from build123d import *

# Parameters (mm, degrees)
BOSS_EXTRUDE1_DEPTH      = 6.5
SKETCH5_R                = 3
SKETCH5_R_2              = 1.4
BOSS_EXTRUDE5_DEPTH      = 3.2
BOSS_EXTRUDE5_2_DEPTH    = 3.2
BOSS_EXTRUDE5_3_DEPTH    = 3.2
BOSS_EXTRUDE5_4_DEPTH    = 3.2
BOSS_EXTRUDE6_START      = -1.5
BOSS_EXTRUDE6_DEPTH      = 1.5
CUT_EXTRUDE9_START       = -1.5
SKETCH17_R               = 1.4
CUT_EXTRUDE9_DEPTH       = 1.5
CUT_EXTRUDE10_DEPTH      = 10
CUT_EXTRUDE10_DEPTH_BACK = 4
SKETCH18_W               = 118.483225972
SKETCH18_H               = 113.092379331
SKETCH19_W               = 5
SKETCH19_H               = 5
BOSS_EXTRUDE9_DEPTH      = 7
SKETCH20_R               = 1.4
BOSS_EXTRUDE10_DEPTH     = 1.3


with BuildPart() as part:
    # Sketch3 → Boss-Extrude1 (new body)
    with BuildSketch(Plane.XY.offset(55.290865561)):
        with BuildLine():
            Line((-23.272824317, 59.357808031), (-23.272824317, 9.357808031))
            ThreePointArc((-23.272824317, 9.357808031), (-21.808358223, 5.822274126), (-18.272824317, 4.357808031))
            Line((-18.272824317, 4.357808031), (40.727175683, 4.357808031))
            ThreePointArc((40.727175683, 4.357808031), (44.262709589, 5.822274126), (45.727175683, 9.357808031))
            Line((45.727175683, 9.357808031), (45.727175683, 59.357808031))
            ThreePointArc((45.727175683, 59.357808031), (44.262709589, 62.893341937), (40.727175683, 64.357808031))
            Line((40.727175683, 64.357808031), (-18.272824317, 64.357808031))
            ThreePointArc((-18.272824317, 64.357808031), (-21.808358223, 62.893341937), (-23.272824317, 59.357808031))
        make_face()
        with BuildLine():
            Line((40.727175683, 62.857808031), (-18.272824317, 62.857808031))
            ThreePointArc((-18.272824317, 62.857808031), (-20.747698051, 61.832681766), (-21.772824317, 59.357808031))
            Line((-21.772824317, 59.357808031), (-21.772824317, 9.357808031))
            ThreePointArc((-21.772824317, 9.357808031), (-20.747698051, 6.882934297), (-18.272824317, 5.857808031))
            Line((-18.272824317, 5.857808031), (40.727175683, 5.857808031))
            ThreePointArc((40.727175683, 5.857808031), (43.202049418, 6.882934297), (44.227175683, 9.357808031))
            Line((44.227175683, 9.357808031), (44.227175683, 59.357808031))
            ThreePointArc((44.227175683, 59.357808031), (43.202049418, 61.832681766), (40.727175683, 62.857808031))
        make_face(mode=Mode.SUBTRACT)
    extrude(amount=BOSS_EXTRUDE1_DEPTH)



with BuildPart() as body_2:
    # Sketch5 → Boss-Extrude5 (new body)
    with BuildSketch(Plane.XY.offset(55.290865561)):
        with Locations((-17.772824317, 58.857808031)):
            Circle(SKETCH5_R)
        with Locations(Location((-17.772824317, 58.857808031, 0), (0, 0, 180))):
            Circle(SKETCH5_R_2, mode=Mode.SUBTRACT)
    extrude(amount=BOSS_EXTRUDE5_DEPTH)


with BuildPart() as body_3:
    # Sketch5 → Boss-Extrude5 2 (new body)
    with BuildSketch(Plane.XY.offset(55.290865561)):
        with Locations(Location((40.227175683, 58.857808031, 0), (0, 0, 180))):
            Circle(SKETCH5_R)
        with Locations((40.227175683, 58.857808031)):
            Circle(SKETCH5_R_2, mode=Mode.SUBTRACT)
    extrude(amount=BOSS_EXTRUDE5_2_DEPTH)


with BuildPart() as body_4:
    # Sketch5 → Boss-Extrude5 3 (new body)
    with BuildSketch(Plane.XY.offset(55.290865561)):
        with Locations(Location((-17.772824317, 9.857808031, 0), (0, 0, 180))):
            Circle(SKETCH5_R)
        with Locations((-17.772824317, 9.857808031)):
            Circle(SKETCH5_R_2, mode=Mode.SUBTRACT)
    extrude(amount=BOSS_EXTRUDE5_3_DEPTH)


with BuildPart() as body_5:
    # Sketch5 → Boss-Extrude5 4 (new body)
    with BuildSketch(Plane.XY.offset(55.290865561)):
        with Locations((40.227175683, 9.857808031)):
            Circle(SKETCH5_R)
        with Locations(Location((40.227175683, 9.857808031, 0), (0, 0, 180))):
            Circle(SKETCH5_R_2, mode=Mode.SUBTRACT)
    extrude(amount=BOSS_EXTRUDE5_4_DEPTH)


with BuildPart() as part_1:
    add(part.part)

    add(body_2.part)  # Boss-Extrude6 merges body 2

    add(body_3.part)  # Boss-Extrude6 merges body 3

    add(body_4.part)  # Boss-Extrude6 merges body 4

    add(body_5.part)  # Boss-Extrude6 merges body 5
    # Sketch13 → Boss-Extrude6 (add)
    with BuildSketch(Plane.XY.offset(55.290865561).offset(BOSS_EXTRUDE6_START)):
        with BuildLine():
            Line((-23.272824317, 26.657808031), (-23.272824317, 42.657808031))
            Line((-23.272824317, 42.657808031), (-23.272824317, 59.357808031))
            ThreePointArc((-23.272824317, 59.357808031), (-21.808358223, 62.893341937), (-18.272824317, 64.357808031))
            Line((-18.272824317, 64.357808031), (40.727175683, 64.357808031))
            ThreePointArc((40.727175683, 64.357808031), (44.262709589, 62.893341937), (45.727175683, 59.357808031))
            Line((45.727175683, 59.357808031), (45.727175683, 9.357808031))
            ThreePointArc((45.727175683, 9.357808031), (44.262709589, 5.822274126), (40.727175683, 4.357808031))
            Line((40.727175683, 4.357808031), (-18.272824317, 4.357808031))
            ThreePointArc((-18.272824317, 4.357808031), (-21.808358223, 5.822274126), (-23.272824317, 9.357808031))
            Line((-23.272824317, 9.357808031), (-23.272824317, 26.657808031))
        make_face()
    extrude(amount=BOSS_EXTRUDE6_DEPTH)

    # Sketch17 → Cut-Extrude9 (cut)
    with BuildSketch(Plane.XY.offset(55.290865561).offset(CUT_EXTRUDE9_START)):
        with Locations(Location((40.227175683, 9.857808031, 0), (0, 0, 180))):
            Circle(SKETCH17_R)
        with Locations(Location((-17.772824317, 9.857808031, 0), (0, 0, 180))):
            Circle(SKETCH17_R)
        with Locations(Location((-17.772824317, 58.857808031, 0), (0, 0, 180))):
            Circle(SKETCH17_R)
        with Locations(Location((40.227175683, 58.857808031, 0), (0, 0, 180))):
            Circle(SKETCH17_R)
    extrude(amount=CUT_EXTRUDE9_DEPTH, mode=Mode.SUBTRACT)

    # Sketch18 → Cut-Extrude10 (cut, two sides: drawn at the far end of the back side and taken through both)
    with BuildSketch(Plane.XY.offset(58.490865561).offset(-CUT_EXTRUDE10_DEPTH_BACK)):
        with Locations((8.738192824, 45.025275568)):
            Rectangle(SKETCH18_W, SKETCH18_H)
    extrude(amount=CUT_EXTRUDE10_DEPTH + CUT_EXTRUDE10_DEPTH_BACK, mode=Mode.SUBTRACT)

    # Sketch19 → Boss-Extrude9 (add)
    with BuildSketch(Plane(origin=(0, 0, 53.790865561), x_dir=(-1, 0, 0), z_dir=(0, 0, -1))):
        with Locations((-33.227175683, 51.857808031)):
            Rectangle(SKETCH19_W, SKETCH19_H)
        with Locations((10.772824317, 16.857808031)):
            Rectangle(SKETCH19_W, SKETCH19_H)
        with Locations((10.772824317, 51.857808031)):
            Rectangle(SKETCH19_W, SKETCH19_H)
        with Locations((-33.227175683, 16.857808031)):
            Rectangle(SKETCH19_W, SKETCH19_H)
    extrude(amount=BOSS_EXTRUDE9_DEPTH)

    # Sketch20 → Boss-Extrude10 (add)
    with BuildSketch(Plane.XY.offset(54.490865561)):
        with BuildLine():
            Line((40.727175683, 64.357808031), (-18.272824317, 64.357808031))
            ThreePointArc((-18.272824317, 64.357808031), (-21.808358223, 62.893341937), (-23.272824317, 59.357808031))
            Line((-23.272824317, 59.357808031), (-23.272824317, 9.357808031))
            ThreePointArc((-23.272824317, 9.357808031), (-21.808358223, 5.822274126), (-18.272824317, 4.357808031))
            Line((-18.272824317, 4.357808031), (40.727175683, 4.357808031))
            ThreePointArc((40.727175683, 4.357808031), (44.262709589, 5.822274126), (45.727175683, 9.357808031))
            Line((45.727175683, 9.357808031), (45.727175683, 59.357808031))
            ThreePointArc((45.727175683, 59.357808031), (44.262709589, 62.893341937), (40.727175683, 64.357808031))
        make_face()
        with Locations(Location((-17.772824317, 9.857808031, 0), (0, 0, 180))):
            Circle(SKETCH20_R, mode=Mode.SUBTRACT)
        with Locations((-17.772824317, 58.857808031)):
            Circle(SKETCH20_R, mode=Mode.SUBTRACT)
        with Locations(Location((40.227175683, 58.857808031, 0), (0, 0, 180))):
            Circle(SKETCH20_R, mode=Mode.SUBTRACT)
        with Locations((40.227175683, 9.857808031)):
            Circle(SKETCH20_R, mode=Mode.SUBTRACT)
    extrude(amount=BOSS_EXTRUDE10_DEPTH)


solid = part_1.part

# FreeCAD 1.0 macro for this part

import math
import FreeCAD as App
import Part
import Sketcher
from FreeCAD import Vector

doc = App.newDocument("Part")
body = doc.addObject("PartDesign::Body", "Body")

# Sketch on XY plane
sketch1 = body.newObject("Sketcher::SketchObject", "Sketch")
sketch1.AttachmentSupport = (doc.getObject("XY_Plane"), [""])
sketch1.MapMode = "FlatFace"
sketch1.AttachmentOffset = App.Placement(Vector(0, 0, 55.290866), App.Rotation())
sketch1.addGeometry(Part.LineSegment(Vector(-23.3, 59.4, 0), Vector(-23.3, 9.4, 0)), False)
sketch1.addGeometry(Part.ArcOfCircle(Part.Circle(Vector(-18.3, 9.4, 0), Vector(0, 0, 1), 5), math.radians(-180), math.radians(-90)), False)
sketch1.addGeometry(Part.LineSegment(Vector(-18.3, 4.4, 0), Vector(40.7, 4.4, 0)), False)
sketch1.addGeometry(Part.ArcOfCircle(Part.Circle(Vector(40.7, 9.4, 0), Vector(0, 0, 1), 5), math.radians(-90), math.radians(0)), False)
sketch1.addGeometry(Part.LineSegment(Vector(45.7, 9.4, 0), Vector(45.7, 59.4, 0)), False)
sketch1.addGeometry(Part.ArcOfCircle(Part.Circle(Vector(40.7, 59.4, 0), Vector(0, 0, 1), 5), math.radians(0), math.radians(90)), False)
sketch1.addGeometry(Part.LineSegment(Vector(40.7, 64.4, 0), Vector(-18.3, 64.4, 0)), False)
sketch1.addGeometry(Part.ArcOfCircle(Part.Circle(Vector(-18.3, 59.4, 0), Vector(0, 0, 1), 5), math.radians(90), math.radians(180)), False)
sketch1.addGeometry(Part.LineSegment(Vector(-18.3, 62.9, 0), Vector(40.7, 62.9, 0)), False)
sketch1.addGeometry(Part.ArcOfCircle(Part.Circle(Vector(40.7, 59.4, 0), Vector(0, 0, 1), 3.5), math.radians(0), math.radians(90)), False)
sketch1.addGeometry(Part.LineSegment(Vector(44.2, 59.4, 0), Vector(44.2, 9.4, 0)), False)
sketch1.addGeometry(Part.ArcOfCircle(Part.Circle(Vector(40.7, 9.4, 0), Vector(0, 0, 1), 3.5), math.radians(-90), math.radians(0)), False)
sketch1.addGeometry(Part.LineSegment(Vector(40.7, 5.9, 0), Vector(-18.3, 5.9, 0)), False)
sketch1.addGeometry(Part.ArcOfCircle(Part.Circle(Vector(-18.3, 9.4, 0), Vector(0, 0, 1), 3.5), math.radians(-180), math.radians(-90)), False)
sketch1.addGeometry(Part.LineSegment(Vector(-21.8, 9.4, 0), Vector(-21.8, 59.4, 0)), False)
sketch1.addGeometry(Part.ArcOfCircle(Part.Circle(Vector(-18.3, 59.4, 0), Vector(0, 0, 1), 3.5), math.radians(90), math.radians(180)), False)
sketch1.addConstraint(Sketcher.Constraint("Tangent", 0, 2, 1, 1))
sketch1.addConstraint(Sketcher.Constraint("Tangent", 1, 2, 2, 1))
sketch1.addConstraint(Sketcher.Constraint("Tangent", 2, 2, 3, 1))
sketch1.addConstraint(Sketcher.Constraint("Tangent", 3, 2, 4, 1))
sketch1.addConstraint(Sketcher.Constraint("Tangent", 4, 2, 5, 1))
sketch1.addConstraint(Sketcher.Constraint("Tangent", 5, 2, 6, 1))
sketch1.addConstraint(Sketcher.Constraint("Tangent", 6, 2, 7, 1))
sketch1.addConstraint(Sketcher.Constraint("Tangent", 7, 2, 0, 1))
sketch1.addConstraint(Sketcher.Constraint("Tangent", 8, 2, 9, 2))
sketch1.addConstraint(Sketcher.Constraint("Tangent", 9, 1, 10, 1))
sketch1.addConstraint(Sketcher.Constraint("Tangent", 10, 2, 11, 2))
sketch1.addConstraint(Sketcher.Constraint("Tangent", 11, 1, 12, 1))
sketch1.addConstraint(Sketcher.Constraint("Tangent", 12, 2, 13, 2))
sketch1.addConstraint(Sketcher.Constraint("Tangent", 13, 1, 14, 1))
sketch1.addConstraint(Sketcher.Constraint("Tangent", 14, 2, 15, 2))
sketch1.addConstraint(Sketcher.Constraint("Tangent", 15, 1, 8, 1))
sketch1.addConstraint(Sketcher.Constraint("Vertical", 0))
sketch1.addConstraint(Sketcher.Constraint("Horizontal", 2))
sketch1.addConstraint(Sketcher.Constraint("Vertical", 4))
sketch1.addConstraint(Sketcher.Constraint("Horizontal", 6))
sketch1.addConstraint(Sketcher.Constraint("Horizontal", 8))
sketch1.addConstraint(Sketcher.Constraint("Vertical", 10))
sketch1.addConstraint(Sketcher.Constraint("Horizontal", 12))
sketch1.addConstraint(Sketcher.Constraint("Vertical", 14))
sketch1.addConstraint(Sketcher.Constraint("Coincident", 9, 3, 5, 3))
sketch1.addConstraint(Sketcher.Constraint("Coincident", 11, 3, 3, 3))
sketch1.addConstraint(Sketcher.Constraint("Coincident", 13, 3, 1, 3))
sketch1.addConstraint(Sketcher.Constraint("Equal", 1, 3))
sketch1.addConstraint(Sketcher.Constraint("Equal", 3, 5))
sketch1.addConstraint(Sketcher.Constraint("Equal", 5, 7))
sketch1.addConstraint(Sketcher.Constraint("Equal", 13, 15))
sketch1.addConstraint(Sketcher.Constraint("Radius", 1, 5.0))
sketch1.addConstraint(Sketcher.Constraint("Radius", 9, 3.5))
sketch1.addConstraint(Sketcher.Constraint("DistanceX", 2, 1, 2, 2, 59.0))
sketch1.addConstraint(Sketcher.Constraint("DistanceY", 0, 2, 0, 1, 50.0))
sketch1.addConstraint(Sketcher.Constraint("DistanceY", -1, 1, 1, 3, 9.357808))
sketch1.addConstraint(Sketcher.Constraint("DistanceX", 1, 3, -1, 1, 18.272824))
pad1 = body.newObject("PartDesign::Pad", "Pad")
pad1.Profile = sketch1
pad1.Length = 6.5
body2 = doc.addObject("PartDesign::Body", "Body001")

# Sketch on XY plane
sketch2 = body2.newObject("Sketcher::SketchObject", "Sketch001")
sketch2.AttachmentSupport = (doc.getObject("XY_Plane001"), [""])
sketch2.MapMode = "FlatFace"
sketch2.AttachmentOffset = App.Placement(Vector(0, 0, 55.290866), App.Rotation())
sketch2.addGeometry(Part.Circle(Vector(-17.8, 58.9, 0), Vector(0, 0, 1), 3), False)
sketch2.addGeometry(Part.Circle(Vector(-17.8, 58.9, 0), Vector(0, 0, 1), 1.4), False)
sketch2.addConstraint(Sketcher.Constraint("Coincident", 1, 3, 0, 3))
sketch2.addConstraint(Sketcher.Constraint("Diameter", 0, 6.0))
sketch2.addConstraint(Sketcher.Constraint("Diameter", 1, 2.8))
sketch2.addConstraint(Sketcher.Constraint("DistanceY", -1, 1, 0, 3, 58.857808))
sketch2.addConstraint(Sketcher.Constraint("DistanceX", 0, 3, -1, 1, 17.772824))
pad2 = body2.newObject("PartDesign::Pad", "Pad001")
pad2.Profile = sketch2
pad2.Length = 3.2
body3 = doc.addObject("PartDesign::Body", "Body002")

# Sketch on XY plane
sketch3 = body3.newObject("Sketcher::SketchObject", "Sketch002")
sketch3.AttachmentSupport = (doc.getObject("XY_Plane002"), [""])
sketch3.MapMode = "FlatFace"
sketch3.AttachmentOffset = App.Placement(Vector(0, 0, 55.290866), App.Rotation())
sketch3.addGeometry(Part.Circle(Vector(40.2, 58.9, 0), Vector(0, 0, 1), 3), False)
sketch3.addGeometry(Part.Circle(Vector(40.2, 58.9, 0), Vector(0, 0, 1), 1.4), False)
sketch3.addConstraint(Sketcher.Constraint("Coincident", 1, 3, 0, 3))
sketch3.addConstraint(Sketcher.Constraint("Diameter", 0, 6.0))
sketch3.addConstraint(Sketcher.Constraint("Diameter", 1, 2.8))
sketch3.addConstraint(Sketcher.Constraint("DistanceY", -1, 1, 0, 3, 58.857808))
sketch3.addConstraint(Sketcher.Constraint("DistanceX", -1, 1, 0, 3, 40.227176))
pad3 = body3.newObject("PartDesign::Pad", "Pad002")
pad3.Profile = sketch3
pad3.Length = 3.2
body4 = doc.addObject("PartDesign::Body", "Body003")

# Sketch on XY plane
sketch4 = body4.newObject("Sketcher::SketchObject", "Sketch003")
sketch4.AttachmentSupport = (doc.getObject("XY_Plane003"), [""])
sketch4.MapMode = "FlatFace"
sketch4.AttachmentOffset = App.Placement(Vector(0, 0, 55.290866), App.Rotation())
sketch4.addGeometry(Part.Circle(Vector(-17.8, 9.9, 0), Vector(0, 0, 1), 3), False)
sketch4.addGeometry(Part.Circle(Vector(-17.8, 9.9, 0), Vector(0, 0, 1), 1.4), False)
sketch4.addConstraint(Sketcher.Constraint("Coincident", 1, 3, 0, 3))
sketch4.addConstraint(Sketcher.Constraint("Diameter", 0, 6.0))
sketch4.addConstraint(Sketcher.Constraint("Diameter", 1, 2.8))
sketch4.addConstraint(Sketcher.Constraint("DistanceY", -1, 1, 0, 3, 9.857808))
sketch4.addConstraint(Sketcher.Constraint("DistanceX", 0, 3, -1, 1, 17.772824))
pad4 = body4.newObject("PartDesign::Pad", "Pad003")
pad4.Profile = sketch4
pad4.Length = 3.2
body5 = doc.addObject("PartDesign::Body", "Body004")

# Sketch on XY plane
sketch5 = body5.newObject("Sketcher::SketchObject", "Sketch004")
sketch5.AttachmentSupport = (doc.getObject("XY_Plane004"), [""])
sketch5.MapMode = "FlatFace"
sketch5.AttachmentOffset = App.Placement(Vector(0, 0, 55.290866), App.Rotation())
sketch5.addGeometry(Part.Circle(Vector(40.2, 9.9, 0), Vector(0, 0, 1), 3), False)
sketch5.addGeometry(Part.Circle(Vector(40.2, 9.9, 0), Vector(0, 0, 1), 1.4), False)
sketch5.addConstraint(Sketcher.Constraint("Coincident", 1, 3, 0, 3))
sketch5.addConstraint(Sketcher.Constraint("Diameter", 0, 6.0))
sketch5.addConstraint(Sketcher.Constraint("Diameter", 1, 2.8))
sketch5.addConstraint(Sketcher.Constraint("DistanceY", -1, 1, 0, 3, 9.857808))
sketch5.addConstraint(Sketcher.Constraint("DistanceX", -1, 1, 0, 3, 40.227176))
pad5 = body5.newObject("PartDesign::Pad", "Pad004")
pad5.Profile = sketch5
pad5.Length = 3.2
body.AllowCompound = True
doc.recompute()

boolean = body.newObject("PartDesign::Boolean", "Boolean")
boolean.Type = "Fuse"
boolean.addObjects([body2])
doc.recompute()

boolean2 = body.newObject("PartDesign::Boolean", "Boolean001")
boolean2.Type = "Fuse"
boolean2.addObjects([body3])
doc.recompute()

boolean3 = body.newObject("PartDesign::Boolean", "Boolean002")
boolean3.Type = "Fuse"
boolean3.addObjects([body4])
doc.recompute()

boolean4 = body.newObject("PartDesign::Boolean", "Boolean003")
boolean4.Type = "Fuse"
boolean4.addObjects([body5])

# Sketch on XY plane
sketch6 = body.newObject("Sketcher::SketchObject", "Sketch005")
sketch6.AttachmentSupport = (doc.getObject("XY_Plane"), [""])
sketch6.MapMode = "FlatFace"
sketch6.AttachmentOffset = App.Placement(Vector(0, 0, 53.790866), App.Rotation())
sketch6.addGeometry(Part.ArcOfCircle(Part.Circle(Vector(-18, 59, 0), Vector(0, 0, 1), 5), math.radians(90), math.radians(180)), False)
sketch6.addGeometry(Part.LineSegment(Vector(-23, 59, 0), Vector(-23, 9, 0)), False)
sketch6.addGeometry(Part.ArcOfCircle(Part.Circle(Vector(-18, 9, 0), Vector(0, 0, 1), 5), math.radians(-180), math.radians(-90)), False)
sketch6.addGeometry(Part.LineSegment(Vector(-18, 4, 0), Vector(41, 4, 0)), False)
sketch6.addGeometry(Part.ArcOfCircle(Part.Circle(Vector(41, 9, 0), Vector(0, 0, 1), 5), math.radians(-90), math.radians(0)), False)
sketch6.addGeometry(Part.LineSegment(Vector(46, 9, 0), Vector(46, 59, 0)), False)
sketch6.addGeometry(Part.ArcOfCircle(Part.Circle(Vector(41, 59, 0), Vector(0, 0, 1), 5), math.radians(0), math.radians(90)), False)
sketch6.addGeometry(Part.LineSegment(Vector(41, 64, 0), Vector(-18, 64, 0)), False)
sketch6.addConstraint(Sketcher.Constraint("Tangent", 0, 2, 1, 1))
sketch6.addConstraint(Sketcher.Constraint("Tangent", 1, 2, 2, 1))
sketch6.addConstraint(Sketcher.Constraint("Tangent", 2, 2, 3, 1))
sketch6.addConstraint(Sketcher.Constraint("Tangent", 3, 2, 4, 1))
sketch6.addConstraint(Sketcher.Constraint("Tangent", 4, 2, 5, 1))
sketch6.addConstraint(Sketcher.Constraint("Tangent", 5, 2, 6, 1))
sketch6.addConstraint(Sketcher.Constraint("Tangent", 6, 2, 7, 1))
sketch6.addConstraint(Sketcher.Constraint("Tangent", 7, 2, 0, 1))
sketch6.addConstraint(Sketcher.Constraint("Vertical", 1))
sketch6.addConstraint(Sketcher.Constraint("Horizontal", 3))
sketch6.addConstraint(Sketcher.Constraint("Vertical", 5))
sketch6.addConstraint(Sketcher.Constraint("Horizontal", 7))
sketch6.addConstraint(Sketcher.Constraint("Equal", 0, 2))
sketch6.addConstraint(Sketcher.Constraint("Equal", 2, 4))
sketch6.addConstraint(Sketcher.Constraint("Equal", 4, 6))
sketch6.addConstraint(Sketcher.Constraint("Radius", 0, 5.0))
sketch6.addConstraint(Sketcher.Constraint("DistanceX", 3, 1, 3, 2, 59.0))
sketch6.addConstraint(Sketcher.Constraint("DistanceY", 1, 2, 1, 1, 50.0))
sketch6.addConstraint(Sketcher.Constraint("DistanceY", -1, 1, 0, 3, 59.357808))
sketch6.addConstraint(Sketcher.Constraint("DistanceX", 0, 3, -1, 1, 18.272824))
pad6 = body.newObject("PartDesign::Pad", "Pad005")
pad6.Profile = sketch6
pad6.Length = 1.5

# Sketch on XY plane
sketch7 = body.newObject("Sketcher::SketchObject", "Sketch006")
sketch7.AttachmentSupport = (doc.getObject("XY_Plane"), [""])
sketch7.MapMode = "FlatFace"
sketch7.AttachmentOffset = App.Placement(Vector(0, 0, 53.790866), App.Rotation())
sketch7.addGeometry(Part.Circle(Vector(40.2, 9.9, 0), Vector(0, 0, 1), 1.4), False)
sketch7.addGeometry(Part.Circle(Vector(-17.8, 9.9, 0), Vector(0, 0, 1), 1.4), False)
sketch7.addGeometry(Part.Circle(Vector(-17.8, 58.9, 0), Vector(0, 0, 1), 1.4), False)
sketch7.addGeometry(Part.Circle(Vector(40.2, 58.9, 0), Vector(0, 0, 1), 1.4), False)
sketch7.addConstraint(Sketcher.Constraint("Equal", 0, 1))
sketch7.addConstraint(Sketcher.Constraint("Equal", 1, 2))
sketch7.addConstraint(Sketcher.Constraint("Equal", 2, 3))
sketch7.addConstraint(Sketcher.Constraint("Horizontal", 0, 3, 1, 3))
sketch7.addConstraint(Sketcher.Constraint("Horizontal", 2, 3, 3, 3))
sketch7.addConstraint(Sketcher.Constraint("Vertical", 1, 3, 2, 3))
sketch7.addConstraint(Sketcher.Constraint("Vertical", 0, 3, 3, 3))
sketch7.addConstraint(Sketcher.Constraint("Diameter", 0, 2.8))
sketch7.addConstraint(Sketcher.Constraint("DistanceX", 1, 3, 0, 3, 58.0))
sketch7.addConstraint(Sketcher.Constraint("DistanceY", 1, 3, 2, 3, 49.0))
sketch7.addConstraint(Sketcher.Constraint("DistanceY", -1, 1, 0, 3, 9.857808))
sketch7.addConstraint(Sketcher.Constraint("DistanceX", -1, 1, 0, 3, 40.227176))
pocket1 = body.newObject("PartDesign::Pocket", "Pocket")
pocket1.Profile = sketch7
pocket1.Length = 1.5
pocket1.Reversed = True

# Sketch on XY plane
sketch8 = body.newObject("Sketcher::SketchObject", "Sketch007")
sketch8.AttachmentSupport = (doc.getObject("XY_Plane"), [""])
sketch8.MapMode = "FlatFace"
sketch8.AttachmentOffset = App.Placement(Vector(0, 0, 58.490866), App.Rotation())
sketch8.addGeometry(Part.LineSegment(Vector(-51, 102, 0), Vector(-51, -12, 0)), False)
sketch8.addGeometry(Part.LineSegment(Vector(-51, -12, 0), Vector(68, -12, 0)), False)
sketch8.addGeometry(Part.LineSegment(Vector(68, -12, 0), Vector(68, 102, 0)), False)
sketch8.addGeometry(Part.LineSegment(Vector(68, 102, 0), Vector(-51, 102, 0)), False)
sketch8.addConstraint(Sketcher.Constraint("Coincident", 0, 2, 1, 1))
sketch8.addConstraint(Sketcher.Constraint("Coincident", 1, 2, 2, 1))
sketch8.addConstraint(Sketcher.Constraint("Coincident", 2, 2, 3, 1))
sketch8.addConstraint(Sketcher.Constraint("Coincident", 3, 2, 0, 1))
sketch8.addConstraint(Sketcher.Constraint("Vertical", 0))
sketch8.addConstraint(Sketcher.Constraint("Horizontal", 1))
sketch8.addConstraint(Sketcher.Constraint("Vertical", 2))
sketch8.addConstraint(Sketcher.Constraint("Horizontal", 3))
sketch8.addConstraint(Sketcher.Constraint("DistanceY", 0, 2, 0, 1, 113.092379))
sketch8.addConstraint(Sketcher.Constraint("DistanceX", 1, 1, 1, 2, 118.483226))
sketch8.addConstraint(Sketcher.Constraint("DistanceX", 0, 2, -1, 1, 50.50342))
sketch8.addConstraint(Sketcher.Constraint("DistanceY", 0, 2, -1, 1, 11.520914))
pocket2 = body.newObject("PartDesign::Pocket", "Pocket001")
pocket2.Profile = sketch8
pocket2.Type = "TwoLengths"
pocket2.Length = 10
pocket2.Length2 = 4
pocket2.Reversed = True

# Sketch on XY plane
sketch9 = body.newObject("Sketcher::SketchObject", "Sketch008")
sketch9.AttachmentSupport = (doc.getObject("XY_Plane"), [""])
sketch9.MapMode = "FlatFace"
sketch9.AttachmentOffset = App.Placement(Vector(0, 0, 53.790866), App.Rotation())
sketch9.addGeometry(Part.LineSegment(Vector(36, 54, 0), Vector(36, 49, 0)), False)
sketch9.addGeometry(Part.LineSegment(Vector(36, 49, 0), Vector(31, 49, 0)), False)
sketch9.addGeometry(Part.LineSegment(Vector(31, 49, 0), Vector(31, 54, 0)), False)
sketch9.addGeometry(Part.LineSegment(Vector(31, 54, 0), Vector(36, 54, 0)), False)
sketch9.addGeometry(Part.LineSegment(Vector(-8, 19, 0), Vector(-8, 14, 0)), False)
sketch9.addGeometry(Part.LineSegment(Vector(-8, 14, 0), Vector(-13, 14, 0)), False)
sketch9.addGeometry(Part.LineSegment(Vector(-13, 14, 0), Vector(-13, 19, 0)), False)
sketch9.addGeometry(Part.LineSegment(Vector(-13, 19, 0), Vector(-8, 19, 0)), False)
sketch9.addGeometry(Part.LineSegment(Vector(-8, 54, 0), Vector(-8, 49, 0)), False)
sketch9.addGeometry(Part.LineSegment(Vector(-8, 49, 0), Vector(-13, 49, 0)), False)
sketch9.addGeometry(Part.LineSegment(Vector(-13, 49, 0), Vector(-13, 54, 0)), False)
sketch9.addGeometry(Part.LineSegment(Vector(-13, 54, 0), Vector(-8, 54, 0)), False)
sketch9.addGeometry(Part.LineSegment(Vector(36, 19, 0), Vector(36, 14, 0)), False)
sketch9.addGeometry(Part.LineSegment(Vector(36, 14, 0), Vector(31, 14, 0)), False)
sketch9.addGeometry(Part.LineSegment(Vector(31, 14, 0), Vector(31, 19, 0)), False)
sketch9.addGeometry(Part.LineSegment(Vector(31, 19, 0), Vector(36, 19, 0)), False)
sketch9.addConstraint(Sketcher.Constraint("Coincident", 0, 2, 1, 1))
sketch9.addConstraint(Sketcher.Constraint("Coincident", 1, 2, 2, 1))
sketch9.addConstraint(Sketcher.Constraint("Coincident", 2, 2, 3, 1))
sketch9.addConstraint(Sketcher.Constraint("Coincident", 3, 2, 0, 1))
sketch9.addConstraint(Sketcher.Constraint("Coincident", 4, 2, 5, 1))
sketch9.addConstraint(Sketcher.Constraint("Coincident", 5, 2, 6, 1))
sketch9.addConstraint(Sketcher.Constraint("Coincident", 6, 2, 7, 1))
sketch9.addConstraint(Sketcher.Constraint("Coincident", 7, 2, 4, 1))
sketch9.addConstraint(Sketcher.Constraint("Coincident", 8, 2, 9, 1))
sketch9.addConstraint(Sketcher.Constraint("Coincident", 9, 2, 10, 1))
sketch9.addConstraint(Sketcher.Constraint("Coincident", 10, 2, 11, 1))
sketch9.addConstraint(Sketcher.Constraint("Coincident", 11, 2, 8, 1))
sketch9.addConstraint(Sketcher.Constraint("Coincident", 12, 2, 13, 1))
sketch9.addConstraint(Sketcher.Constraint("Coincident", 13, 2, 14, 1))
sketch9.addConstraint(Sketcher.Constraint("Coincident", 14, 2, 15, 1))
sketch9.addConstraint(Sketcher.Constraint("Coincident", 15, 2, 12, 1))
sketch9.addConstraint(Sketcher.Constraint("Vertical", 0))
sketch9.addConstraint(Sketcher.Constraint("Horizontal", 1))
sketch9.addConstraint(Sketcher.Constraint("Vertical", 2))
sketch9.addConstraint(Sketcher.Constraint("Horizontal", 3))
sketch9.addConstraint(Sketcher.Constraint("Vertical", 4))
sketch9.addConstraint(Sketcher.Constraint("Horizontal", 5))
sketch9.addConstraint(Sketcher.Constraint("Vertical", 6))
sketch9.addConstraint(Sketcher.Constraint("Horizontal", 7))
sketch9.addConstraint(Sketcher.Constraint("Vertical", 8))
sketch9.addConstraint(Sketcher.Constraint("Horizontal", 9))
sketch9.addConstraint(Sketcher.Constraint("Vertical", 10))
sketch9.addConstraint(Sketcher.Constraint("Horizontal", 11))
sketch9.addConstraint(Sketcher.Constraint("Vertical", 12))
sketch9.addConstraint(Sketcher.Constraint("Horizontal", 13))
sketch9.addConstraint(Sketcher.Constraint("Vertical", 14))
sketch9.addConstraint(Sketcher.Constraint("Horizontal", 15))
sketch9.addConstraint(Sketcher.Constraint("Horizontal", 1, 2, 8, 2))
sketch9.addConstraint(Sketcher.Constraint("Horizontal", 3, 2, 10, 2))
sketch9.addConstraint(Sketcher.Constraint("Horizontal", 5, 2, 12, 2))
sketch9.addConstraint(Sketcher.Constraint("Horizontal", 7, 2, 14, 2))
sketch9.addConstraint(Sketcher.Constraint("Vertical", 7, 2, 8, 2))
sketch9.addConstraint(Sketcher.Constraint("Vertical", 6, 2, 9, 2))
sketch9.addConstraint(Sketcher.Constraint("Vertical", 3, 2, 12, 2))
sketch9.addConstraint(Sketcher.Constraint("Vertical", 2, 2, 13, 2))
sketch9.addConstraint(Sketcher.Constraint("Equal", 3, 5))
sketch9.addConstraint(Sketcher.Constraint("Equal", 15, 0))
sketch9.addConstraint(Sketcher.Constraint("Equal", 2, 4))
sketch9.addConstraint(Sketcher.Constraint("DistanceX", 1, 2, 1, 1, 5.0))
sketch9.addConstraint(Sketcher.Constraint("DistanceX", 4, 2, 1, 2, 39.0))
sketch9.addConstraint(Sketcher.Constraint("DistanceY", 4, 2, 1, 2, 35.0))
sketch9.addConstraint(Sketcher.Constraint("DistanceY", -1, 1, 0, 2, 49.357808))
sketch9.addConstraint(Sketcher.Constraint("DistanceX", -1, 1, 0, 2, 35.727176))
pad7 = body.newObject("PartDesign::Pad", "Pad006")
pad7.Profile = sketch9
pad7.Length = 7
pad7.Reversed = True

# Sketch on XY plane
sketch10 = body.newObject("Sketcher::SketchObject", "Sketch009")
sketch10.AttachmentSupport = (doc.getObject("XY_Plane"), [""])
sketch10.MapMode = "FlatFace"
sketch10.AttachmentOffset = App.Placement(Vector(0, 0, 54.490866), App.Rotation())
sketch10.addGeometry(Part.LineSegment(Vector(40.7, 64.4, 0), Vector(-18.3, 64.4, 0)), False)
sketch10.addGeometry(Part.ArcOfCircle(Part.Circle(Vector(-18.3, 59.4, 0), Vector(0, 0, 1), 5), math.radians(90), math.radians(180)), False)
sketch10.addGeometry(Part.LineSegment(Vector(-23.3, 59.4, 0), Vector(-23.3, 9.4, 0)), False)
sketch10.addGeometry(Part.ArcOfCircle(Part.Circle(Vector(-18.3, 9.4, 0), Vector(0, 0, 1), 5), math.radians(-180), math.radians(-90)), False)
sketch10.addGeometry(Part.LineSegment(Vector(-18.3, 4.4, 0), Vector(40.7, 4.4, 0)), False)
sketch10.addGeometry(Part.ArcOfCircle(Part.Circle(Vector(40.7, 9.4, 0), Vector(0, 0, 1), 5), math.radians(-90), math.radians(0)), False)
sketch10.addGeometry(Part.LineSegment(Vector(45.7, 9.4, 0), Vector(45.7, 59.4, 0)), False)
sketch10.addGeometry(Part.ArcOfCircle(Part.Circle(Vector(40.7, 59.4, 0), Vector(0, 0, 1), 5), math.radians(0), math.radians(90)), False)
sketch10.addGeometry(Part.Circle(Vector(-17.8, 9.9, 0), Vector(0, 0, 1), 1.4), False)
sketch10.addGeometry(Part.Circle(Vector(40.2, 9.9, 0), Vector(0, 0, 1), 1.4), False)
sketch10.addGeometry(Part.Circle(Vector(-17.8, 58.9, 0), Vector(0, 0, 1), 1.4), False)
sketch10.addGeometry(Part.Circle(Vector(40.2, 58.9, 0), Vector(0, 0, 1), 1.4), False)
sketch10.addConstraint(Sketcher.Constraint("Tangent", 0, 2, 1, 1))
sketch10.addConstraint(Sketcher.Constraint("Tangent", 1, 2, 2, 1))
sketch10.addConstraint(Sketcher.Constraint("Tangent", 2, 2, 3, 1))
sketch10.addConstraint(Sketcher.Constraint("Tangent", 3, 2, 4, 1))
sketch10.addConstraint(Sketcher.Constraint("Tangent", 4, 2, 5, 1))
sketch10.addConstraint(Sketcher.Constraint("Tangent", 5, 2, 6, 1))
sketch10.addConstraint(Sketcher.Constraint("Tangent", 6, 2, 7, 1))
sketch10.addConstraint(Sketcher.Constraint("Tangent", 7, 2, 0, 1))
sketch10.addConstraint(Sketcher.Constraint("Horizontal", 0))
sketch10.addConstraint(Sketcher.Constraint("Vertical", 2))
sketch10.addConstraint(Sketcher.Constraint("Horizontal", 4))
sketch10.addConstraint(Sketcher.Constraint("Vertical", 6))
sketch10.addConstraint(Sketcher.Constraint("Equal", 1, 3))
sketch10.addConstraint(Sketcher.Constraint("Equal", 3, 5))
sketch10.addConstraint(Sketcher.Constraint("Equal", 5, 7))
sketch10.addConstraint(Sketcher.Constraint("Equal", 8, 9))
sketch10.addConstraint(Sketcher.Constraint("Equal", 9, 10))
sketch10.addConstraint(Sketcher.Constraint("Equal", 10, 11))
sketch10.addConstraint(Sketcher.Constraint("Horizontal", 8, 3, 9, 3))
sketch10.addConstraint(Sketcher.Constraint("Horizontal", 10, 3, 11, 3))
sketch10.addConstraint(Sketcher.Constraint("Vertical", 8, 3, 10, 3))
sketch10.addConstraint(Sketcher.Constraint("Vertical", 9, 3, 11, 3))
sketch10.addConstraint(Sketcher.Constraint("Radius", 1, 5.0))
sketch10.addConstraint(Sketcher.Constraint("Diameter", 8, 2.8))
sketch10.addConstraint(Sketcher.Constraint("DistanceX", 0, 2, 0, 1, 59.0))
sketch10.addConstraint(Sketcher.Constraint("DistanceY", 2, 2, 2, 1, 50.0))
sketch10.addConstraint(Sketcher.Constraint("DistanceX", 8, 3, 9, 3, 58.0))
sketch10.addConstraint(Sketcher.Constraint("DistanceY", 8, 3, 10, 3, 49.0))
sketch10.addConstraint(Sketcher.Constraint("DistanceX", 3, 3, 8, 3, 0.5))
sketch10.addConstraint(Sketcher.Constraint("DistanceY", 3, 3, 8, 3, 0.5))
sketch10.addConstraint(Sketcher.Constraint("DistanceY", -1, 1, 1, 3, 59.357808))
sketch10.addConstraint(Sketcher.Constraint("DistanceX", 1, 3, -1, 1, 18.272824))
pad8 = body.newObject("PartDesign::Pad", "Pad007")
pad8.Profile = sketch10
pad8.Length = 1.3

doc.recompute()
